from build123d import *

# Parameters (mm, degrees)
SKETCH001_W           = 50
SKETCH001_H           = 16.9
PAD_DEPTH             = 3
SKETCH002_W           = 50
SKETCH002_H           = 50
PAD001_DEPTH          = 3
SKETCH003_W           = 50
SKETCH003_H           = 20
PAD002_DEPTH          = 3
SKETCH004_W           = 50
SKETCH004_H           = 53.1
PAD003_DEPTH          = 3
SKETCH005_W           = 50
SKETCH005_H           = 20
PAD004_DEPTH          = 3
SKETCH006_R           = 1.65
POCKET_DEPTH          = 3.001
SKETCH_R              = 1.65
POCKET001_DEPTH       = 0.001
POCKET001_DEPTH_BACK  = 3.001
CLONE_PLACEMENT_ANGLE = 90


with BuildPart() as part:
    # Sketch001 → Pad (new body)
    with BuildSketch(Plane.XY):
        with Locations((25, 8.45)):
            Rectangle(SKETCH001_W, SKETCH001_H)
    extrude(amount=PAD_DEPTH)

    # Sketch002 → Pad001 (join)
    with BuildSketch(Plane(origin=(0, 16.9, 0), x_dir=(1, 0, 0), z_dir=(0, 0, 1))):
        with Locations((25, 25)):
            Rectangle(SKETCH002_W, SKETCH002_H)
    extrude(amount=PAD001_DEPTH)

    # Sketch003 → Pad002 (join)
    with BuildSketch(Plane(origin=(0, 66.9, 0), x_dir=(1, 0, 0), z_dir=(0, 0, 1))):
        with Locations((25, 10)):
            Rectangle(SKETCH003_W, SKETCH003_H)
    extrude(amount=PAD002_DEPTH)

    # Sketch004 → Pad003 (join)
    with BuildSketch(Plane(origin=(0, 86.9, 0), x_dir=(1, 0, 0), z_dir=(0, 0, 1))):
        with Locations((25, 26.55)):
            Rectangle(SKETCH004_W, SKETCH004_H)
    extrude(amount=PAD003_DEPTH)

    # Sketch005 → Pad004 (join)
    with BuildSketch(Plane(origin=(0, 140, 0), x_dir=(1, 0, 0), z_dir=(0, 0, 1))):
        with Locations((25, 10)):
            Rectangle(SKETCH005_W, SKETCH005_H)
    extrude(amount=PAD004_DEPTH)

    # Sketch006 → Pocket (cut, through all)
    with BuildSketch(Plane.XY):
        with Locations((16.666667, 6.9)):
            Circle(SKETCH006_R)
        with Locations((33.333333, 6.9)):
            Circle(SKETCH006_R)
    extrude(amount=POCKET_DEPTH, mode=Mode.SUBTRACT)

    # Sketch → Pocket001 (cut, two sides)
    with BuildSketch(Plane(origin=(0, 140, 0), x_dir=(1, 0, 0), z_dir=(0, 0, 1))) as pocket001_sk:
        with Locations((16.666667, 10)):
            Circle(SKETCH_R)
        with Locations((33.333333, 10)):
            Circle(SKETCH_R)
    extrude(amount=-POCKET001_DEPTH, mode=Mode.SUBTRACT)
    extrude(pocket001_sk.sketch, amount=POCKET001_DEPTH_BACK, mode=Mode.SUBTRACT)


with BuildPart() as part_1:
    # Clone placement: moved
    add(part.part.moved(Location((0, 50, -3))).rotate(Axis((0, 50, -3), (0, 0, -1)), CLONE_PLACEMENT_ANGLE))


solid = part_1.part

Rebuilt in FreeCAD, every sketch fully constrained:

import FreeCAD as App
import Part
import Sketcher

V = App.Vector

doc = App.newDocument("Part")
body = doc.addObject("PartDesign::Body", "Body")

sketch1 = doc.addObject("Sketcher::SketchObject", "Sketch")
body.addObject(sketch1)
sketch1.AttachmentSupport = (doc.XY_Plane, [""])
sketch1.MapMode = "FlatFace"
sketch1.addGeometry([
    Part.LineSegment(V(0, 16.9, 0), V(0, 0, 0)),
    Part.LineSegment(V(0, 0, 0), V(50, 0, 0)),
    Part.LineSegment(V(50, 0, 0), V(50, 16.9, 0)),
    Part.LineSegment(V(50, 16.9, 0), V(0, 16.9, 0)),
], False)
sketch1.addConstraint([
    Sketcher.Constraint("Coincident", 0, 2, 1, 1),
    Sketcher.Constraint("Coincident", 1, 2, 2, 1),
    Sketcher.Constraint("Coincident", 2, 2, 3, 1),
    Sketcher.Constraint("Coincident", 3, 2, 0, 1),
    Sketcher.Constraint("Vertical", 0),
    Sketcher.Constraint("Horizontal", 1),
    Sketcher.Constraint("Vertical", 2),
    Sketcher.Constraint("Horizontal", 3),
    Sketcher.Constraint("Coincident", 0, 2, -1, 1),
    Sketcher.Constraint("DistanceX", 1, 1, 1, 2, 50.0),
    Sketcher.Constraint("DistanceY", 0, 2, 0, 1, 16.9),
])
pad1 = doc.addObject("PartDesign::Pad", "Pad")
body.addObject(pad1)
pad1.Profile = sketch1
pad1.Length = 3

sketch2 = doc.addObject("Sketcher::SketchObject", "Sketch001")
body.addObject(sketch2)
sketch2.AttachmentSupport = (doc.XY_Plane, [""])
sketch2.MapMode = "FlatFace"
sketch2.addGeometry([
    Part.LineSegment(V(0, 66.9, 0), V(0, 16.9, 0)),
    Part.LineSegment(V(0, 16.9, 0), V(50, 16.9, 0)),
    Part.LineSegment(V(50, 16.9, 0), V(50, 66.9, 0)),
    Part.LineSegment(V(50, 66.9, 0), V(0, 66.9, 0)),
], False)
sketch2.addConstraint([
    Sketcher.Constraint("Coincident", 0, 2, 1, 1),
    Sketcher.Constraint("Coincident", 1, 2, 2, 1),
    Sketcher.Constraint("Coincident", 2, 2, 3, 1),
    Sketcher.Constraint("Coincident", 3, 2, 0, 1),
    Sketcher.Constraint("Vertical", 0),
    Sketcher.Constraint("Horizontal", 1),
    Sketcher.Constraint("Vertical", 2),
    Sketcher.Constraint("Horizontal", 3),
    Sketcher.Constraint("PointOnObject", 0, 2, -2),
    Sketcher.Constraint("Equal", 3, 0),
    Sketcher.Constraint("DistanceX", 1, 1, 1, 2, 50.0),
    Sketcher.Constraint("DistanceY", -1, 1, 0, 2, 16.9),
])
pad2 = doc.addObject("PartDesign::Pad", "Pad001")
body.addObject(pad2)
pad2.Profile = sketch2
pad2.Length = 3

sketch3 = doc.addObject("Sketcher::SketchObject", "Sketch002")
body.addObject(sketch3)
sketch3.AttachmentSupport = (doc.XY_Plane, [""])
sketch3.MapMode = "FlatFace"
sketch3.addGeometry([
    Part.LineSegment(V(0, 86.9, 0), V(0, 66.9, 0)),
    Part.LineSegment(V(0, 66.9, 0), V(50, 66.9, 0)),
    Part.LineSegment(V(50, 66.9, 0), V(50, 86.9, 0)),
    Part.LineSegment(V(50, 86.9, 0), V(0, 86.9, 0)),
], False)
sketch3.addConstraint([
    Sketcher.Constraint("Coincident", 0, 2, 1, 1),
    Sketcher.Constraint("Coincident", 1, 2, 2, 1),
    Sketcher.Constraint("Coincident", 2, 2, 3, 1),
    Sketcher.Constraint("Coincident", 3, 2, 0, 1),
    Sketcher.Constraint("Vertical", 0),
    Sketcher.Constraint("Horizontal", 1),
    Sketcher.Constraint("Vertical", 2),
    Sketcher.Constraint("Horizontal", 3),
    Sketcher.Constraint("PointOnObject", 0, 2, -2),
    Sketcher.Constraint("DistanceX", 1, 1, 1, 2, 50.0),
    Sketcher.Constraint("DistanceY", 0, 2, 0, 1, 20.0),
    Sketcher.Constraint("DistanceY", -1, 1, 0, 2, 66.9),
])
pad3 = doc.addObject("PartDesign::Pad", "Pad002")
body.addObject(pad3)
pad3.Profile = sketch3
pad3.Length = 3

sketch4 = doc.addObject("Sketcher::SketchObject", "Sketch003")
body.addObject(sketch4)
sketch4.AttachmentSupport = (doc.XY_Plane, [""])
sketch4.MapMode = "FlatFace"
sketch4.addGeometry([
    Part.LineSegment(V(0, 140, 0), V(0, 86.9, 0)),
    Part.LineSegment(V(0, 86.9, 0), V(50, 86.9, 0)),
    Part.LineSegment(V(50, 86.9, 0), V(50, 140, 0)),
    Part.LineSegment(V(50, 140, 0), V(0, 140, 0)),
], False)
sketch4.addConstraint([
    Sketcher.Constraint("Coincident", 0, 2, 1, 1),
    Sketcher.Constraint("Coincident", 1, 2, 2, 1),
    Sketcher.Constraint("Coincident", 2, 2, 3, 1),
    Sketcher.Constraint("Coincident", 3, 2, 0, 1),
    Sketcher.Constraint("Vertical", 0),
    Sketcher.Constraint("Horizontal", 1),
    Sketcher.Constraint("Vertical", 2),
    Sketcher.Constraint("Horizontal", 3),
    Sketcher.Constraint("PointOnObject", 0, 2, -2),
    Sketcher.Constraint("DistanceX", 1, 1, 1, 2, 50.0),
    Sketcher.Constraint("DistanceY", 0, 2, 0, 1, 53.1),
    Sketcher.Constraint("DistanceY", -1, 1, 2, 2, 140.0),
])
pad4 = doc.addObject("PartDesign::Pad", "Pad003")
body.addObject(pad4)
pad4.Profile = sketch4
pad4.Length = 3

sketch5 = doc.addObject("Sketcher::SketchObject", "Sketch004")
body.addObject(sketch5)
sketch5.AttachmentSupport = (doc.XY_Plane, [""])
sketch5.MapMode = "FlatFace"
sketch5.addGeometry([
    Part.LineSegment(V(0, 160, 0), V(0, 140, 0)),
    Part.LineSegment(V(0, 140, 0), V(50, 140, 0)),
    Part.LineSegment(V(50, 140, 0), V(50, 160, 0)),
    Part.LineSegment(V(50, 160, 0), V(0, 160, 0)),
], False)
sketch5.addConstraint([
    Sketcher.Constraint("Coincident", 0, 2, 1, 1),
    Sketcher.Constraint("Coincident", 1, 2, 2, 1),
    Sketcher.Constraint("Coincident", 2, 2, 3, 1),
    Sketcher.Constraint("Coincident", 3, 2, 0, 1),
    Sketcher.Constraint("Vertical", 0),
    Sketcher.Constraint("Horizontal", 1),
    Sketcher.Constraint("Vertical", 2),
    Sketcher.Constraint("Horizontal", 3),
    Sketcher.Constraint("PointOnObject", 0, 2, -2),
    Sketcher.Constraint("DistanceX", 1, 1, 1, 2, 50.0),
    Sketcher.Constraint("DistanceY", 0, 2, 0, 1, 20.0),
    Sketcher.Constraint("DistanceY", -1, 1, 0, 2, 140.0),
])
pad5 = doc.addObject("PartDesign::Pad", "Pad004")
body.addObject(pad5)
pad5.Profile = sketch5
pad5.Length = 3

sketch6 = doc.addObject("Sketcher::SketchObject", "Sketch005")
body.addObject(sketch6)
sketch6.AttachmentSupport = (doc.XY_Plane, [""])
sketch6.MapMode = "FlatFace"
sketch6.addGeometry([
    Part.Circle(V(16.666667, 6.9, 0), V(0, 0, 1), 1.65),
    Part.Circle(V(33.333333, 6.9, 0), V(0, 0, 1), 1.65),
], False)
sketch6.addConstraint([
    Sketcher.Constraint("Equal", 0, 1),
    Sketcher.Constraint("Horizontal", 0, 3, 1, 3),
    Sketcher.Constraint("Diameter", 0, 3.3),
    Sketcher.Constraint("DistanceY", -1, 1, 0, 3, 6.9),
    Sketcher.Constraint("DistanceX", -1, 1, 0, 3, 16.666667),
    Sketcher.Constraint("DistanceX", -1, 1, 1, 3, 33.333333),
])
pocket1 = doc.addObject("PartDesign::Pocket", "Pocket")
body.addObject(pocket1)
pocket1.Profile = sketch6
pocket1.Type = "ThroughAll"
pocket1.Reversed = True

sketch7 = doc.addObject("Sketcher::SketchObject", "Sketch006")
body.addObject(sketch7)
sketch7.AttachmentSupport = (doc.XY_Plane, [""])
sketch7.MapMode = "FlatFace"
sketch7.addGeometry([
    Part.Circle(V(16.666667, 150, 0), V(0, 0, 1), 1.65),
    Part.Circle(V(33.333333, 150, 0), V(0, 0, 1), 1.65),
], False)
sketch7.addConstraint([
    Sketcher.Constraint("Equal", 0, 1),
    Sketcher.Constraint("Horizontal", 0, 3, 1, 3),
    Sketcher.Constraint("Diameter", 0, 3.3),
    Sketcher.Constraint("DistanceY", -1, 1, 0, 3, 150.0),
    Sketcher.Constraint("DistanceX", -1, 1, 0, 3, 16.666667),
    Sketcher.Constraint("DistanceX", -1, 1, 1, 3, 33.333333),
])
pocket2 = doc.addObject("PartDesign::Pocket", "Pocket001")
body.addObject(pocket2)
pocket2.Profile = sketch7
pocket2.Type = "ThroughAll"
pocket2.Midplane = True
body2 = doc.addObject("PartDesign::Body", "Body001")
doc.recompute()

body.Placement = App.Placement(V(0, 50, -3), App.Rotation(V(0, 0, -1), 90))
boolean = doc.addObject("PartDesign::Boolean", "Boolean")
body2.addObject(boolean)
boolean.Type = "Fuse"
boolean.addObjects([body])

doc.recompute()
